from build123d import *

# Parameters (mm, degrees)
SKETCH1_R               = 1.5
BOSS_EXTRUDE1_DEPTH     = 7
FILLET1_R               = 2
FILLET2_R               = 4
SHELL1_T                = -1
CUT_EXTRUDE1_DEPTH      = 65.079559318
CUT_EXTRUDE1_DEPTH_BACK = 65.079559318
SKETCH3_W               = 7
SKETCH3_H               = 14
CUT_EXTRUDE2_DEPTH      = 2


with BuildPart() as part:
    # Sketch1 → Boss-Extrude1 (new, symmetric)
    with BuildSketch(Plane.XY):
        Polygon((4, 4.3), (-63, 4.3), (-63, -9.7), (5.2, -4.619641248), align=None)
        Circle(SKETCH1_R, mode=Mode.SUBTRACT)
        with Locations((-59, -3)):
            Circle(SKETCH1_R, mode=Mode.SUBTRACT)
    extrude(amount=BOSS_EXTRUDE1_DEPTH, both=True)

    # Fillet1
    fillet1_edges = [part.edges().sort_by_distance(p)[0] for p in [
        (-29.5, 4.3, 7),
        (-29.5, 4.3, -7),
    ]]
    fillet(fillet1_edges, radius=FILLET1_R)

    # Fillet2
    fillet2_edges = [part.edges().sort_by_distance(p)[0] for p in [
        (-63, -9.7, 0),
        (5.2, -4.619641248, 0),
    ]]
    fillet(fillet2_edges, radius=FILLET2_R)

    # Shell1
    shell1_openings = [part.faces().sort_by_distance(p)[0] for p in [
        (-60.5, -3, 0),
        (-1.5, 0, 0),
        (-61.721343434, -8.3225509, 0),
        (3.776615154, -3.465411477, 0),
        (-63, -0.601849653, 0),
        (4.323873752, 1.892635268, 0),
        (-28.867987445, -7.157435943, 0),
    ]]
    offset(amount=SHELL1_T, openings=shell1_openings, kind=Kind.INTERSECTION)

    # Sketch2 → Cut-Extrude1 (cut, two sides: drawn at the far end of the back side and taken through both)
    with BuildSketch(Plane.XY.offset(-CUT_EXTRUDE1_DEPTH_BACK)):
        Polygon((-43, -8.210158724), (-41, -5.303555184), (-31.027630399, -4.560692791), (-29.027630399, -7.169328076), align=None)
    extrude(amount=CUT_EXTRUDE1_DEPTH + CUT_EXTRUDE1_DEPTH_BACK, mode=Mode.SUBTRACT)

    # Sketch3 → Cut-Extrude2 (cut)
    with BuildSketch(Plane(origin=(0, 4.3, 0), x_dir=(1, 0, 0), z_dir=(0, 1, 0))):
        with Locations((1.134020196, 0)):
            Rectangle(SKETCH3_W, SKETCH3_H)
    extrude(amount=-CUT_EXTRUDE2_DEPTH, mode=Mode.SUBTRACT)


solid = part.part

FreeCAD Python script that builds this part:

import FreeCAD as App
import Part
import Sketcher
from FreeCAD import Vector


def edges_at(feature, points):
    """Names of the edges that pass closest to the given points."""
    edges = feature.Shape.Edges
    near = lambda p: min(range(len(edges)), key=lambda i: edges[i].distToShape(Part.Vertex(*p))[0])
    return sorted({f"Edge{near(p) + 1}" for p in points})


def faces_at(feature, points):
    """Names of the faces that lie closest to the given points."""
    faces = feature.Shape.Faces
    near = lambda p: min(range(len(faces)), key=lambda i: faces[i].distToShape(Part.Vertex(*p))[0])
    return sorted({f"Face{near(p) + 1}" for p in points})


def add_polygon(sketch, points):
    """Adds a closed chain of lines whose ends are joined by coincident constraints."""
    first, n = sketch.GeometryCount, len(points)
    for a, b in zip(points, points[1:] + points[:1]):
        sketch.addGeometry(Part.LineSegment(App.Vector(*a, 0), App.Vector(*b, 0)), False)
    for i in range(n):
        sketch.addConstraint(Sketcher.Constraint("Coincident", first + i, 2, first + (i + 1) % n, 1))

doc = App.newDocument("Part")
body = doc.addObject("PartDesign::Body", "Body")

# Sketch on XY plane
sketch1 = body.newObject("Sketcher::SketchObject", "Sketch")
sketch1.AttachmentSupport = (doc.getObject("XY_Plane"), [""])
sketch1.MapMode = "FlatFace"
add_polygon(sketch1, [(4, 4.3), (-63, 4.3), (-63, -9.7), (5.2, -4.6)])  # lines 0-3
sketch1.addGeometry(Part.Circle(Vector(-59, -3, 0), Vector(0, 0, 1), 1.5), False)  # 4
sketch1.addGeometry(Part.Circle(Vector(0, 0, 0), Vector(0, 0, 1), 1.5), False)  # 5
sketch1.addConstraint([
    Sketcher.Constraint("Horizontal", 0),
    Sketcher.Constraint("Vertical", 1),
    Sketcher.Constraint("Coincident", 5, 3, -1, 1),
    Sketcher.Constraint("Equal", 4, 5),
    Sketcher.Constraint("Diameter", 4, 3.0),
    Sketcher.Constraint("DistanceX", 0, 2, 0, 1, 67.0),
    Sketcher.Constraint("DistanceY", 1, 2, 1, 1, 14.0),
    Sketcher.Constraint("Distance", 3, 9.0),
    Sketcher.Constraint("DistanceX", 4, 3, -1, 1, 59.0),
    Sketcher.Constraint("DistanceY", 4, 3, -1, 1, 3.0),
    Sketcher.Constraint("DistanceX", 0, 2, -1, 1, 63.0),
    Sketcher.Constraint("DistanceY", -1, 1, 0, 2, 4.3),
    Sketcher.Constraint("DistanceX", -1, 1, 2, 2, 5.2),
])
pad1 = body.newObject("PartDesign::Pad", "Pad")
pad1.Profile = sketch1
pad1.Length = 14
pad1.Midplane = True
doc.recompute()

fillet = body.newObject("PartDesign::Fillet", "Fillet")
fillet.Base = (pad1, edges_at(pad1, [(-29.5, 4.3, 7), (-29.5, 4.3, -7)]))
fillet.Radius = 2
doc.recompute()

fillet2 = body.newObject("PartDesign::Fillet", "Fillet001")
fillet2.Base = (fillet, edges_at(fillet, [(-63, -9.7, 0), (5.2, -4.62, 0)]))
fillet2.Radius = 4
doc.recompute()

thickness = body.newObject("PartDesign::Thickness", "Thickness")
thickness.Base = (fillet2, faces_at(fillet2, [
    (-60.5, -3, 0),
    (-1.5, 0, 0),
    (-61.721, -8.323, 0),
    (3.777, -3.465, 0),
    (-63, -0.545, 0),
    (4.317, 1.944, 0),
    (-28.868, -7.157, 0),
]))
thickness.Value = 1
thickness.Reversed = True
thickness.Join = "Intersection"

# Sketch on XY plane
sketch2 = body.newObject("Sketcher::SketchObject", "Sketch001")
sketch2.AttachmentSupport = (doc.getObject("XY_Plane"), [""])
sketch2.MapMode = "FlatFace"
add_polygon(sketch2, [(-41, -5.3), (-43, -8.2), (-29, -7.2), (-31, -4.6)])  # lines 0-3
sketch2.addConstraint([
    Sketcher.Constraint("Parallel", 1, 3),
    Sketcher.Constraint("Distance", 3, 10.0),
    Sketcher.Constraint("DistanceX", 0, 2, -1, 1, 43.0),
    Sketcher.Constraint("DistanceX", 3, 2, -1, 1, 41.0),
    Sketcher.Constraint("DistanceX", 2, 2, 1, 2, 2.0),
    Sketcher.Constraint("Distance", 0, 3.528221),
    Sketcher.Constraint("DistanceY", 0, 2, -1, 1, 8.210159),
    Sketcher.Constraint("DistanceX", 1, 2, -1, 1, 29.02763),
])
pocket1 = body.newObject("PartDesign::Pocket", "Pocket")
pocket1.Profile = sketch2
pocket1.Type = "ThroughAll"
pocket1.Midplane = True

# Sketch on XZ plane
sketch3 = body.newObject("Sketcher::SketchObject", "Sketch002")
sketch3.AttachmentSupport = (doc.getObject("XZ_Plane"), [""])
sketch3.MapMode = "FlatFace"
sketch3.AttachmentOffset = App.Placement(Vector(0, 0, -4.3), App.Rotation())
add_polygon(sketch3, [(-2, -7), (-2, 7), (5, 7), (5, -7)])  # lines 0-3
sketch3.addConstraint([
    Sketcher.Constraint("Vertical", 0),
    Sketcher.Constraint("Horizontal", 1),
    Sketcher.Constraint("Vertical", 2),
    Sketcher.Constraint("Horizontal", 3),
    Sketcher.Constraint("DistanceX", 1, 1, 1, 2, 7.0),
    Sketcher.Constraint("DistanceY", 0, 1, 0, 2, 14.0),
    Sketcher.Constraint("DistanceY", -1, 1, 0, 2, 7.0),
    Sketcher.Constraint("DistanceX", 0, 2, -1, 1, 2.36598),
])
pocket2 = body.newObject("PartDesign::Pocket", "Pocket001")
pocket2.Profile = sketch3
pocket2.Length = 2
pocket2.Reversed = True

doc.recompute()
